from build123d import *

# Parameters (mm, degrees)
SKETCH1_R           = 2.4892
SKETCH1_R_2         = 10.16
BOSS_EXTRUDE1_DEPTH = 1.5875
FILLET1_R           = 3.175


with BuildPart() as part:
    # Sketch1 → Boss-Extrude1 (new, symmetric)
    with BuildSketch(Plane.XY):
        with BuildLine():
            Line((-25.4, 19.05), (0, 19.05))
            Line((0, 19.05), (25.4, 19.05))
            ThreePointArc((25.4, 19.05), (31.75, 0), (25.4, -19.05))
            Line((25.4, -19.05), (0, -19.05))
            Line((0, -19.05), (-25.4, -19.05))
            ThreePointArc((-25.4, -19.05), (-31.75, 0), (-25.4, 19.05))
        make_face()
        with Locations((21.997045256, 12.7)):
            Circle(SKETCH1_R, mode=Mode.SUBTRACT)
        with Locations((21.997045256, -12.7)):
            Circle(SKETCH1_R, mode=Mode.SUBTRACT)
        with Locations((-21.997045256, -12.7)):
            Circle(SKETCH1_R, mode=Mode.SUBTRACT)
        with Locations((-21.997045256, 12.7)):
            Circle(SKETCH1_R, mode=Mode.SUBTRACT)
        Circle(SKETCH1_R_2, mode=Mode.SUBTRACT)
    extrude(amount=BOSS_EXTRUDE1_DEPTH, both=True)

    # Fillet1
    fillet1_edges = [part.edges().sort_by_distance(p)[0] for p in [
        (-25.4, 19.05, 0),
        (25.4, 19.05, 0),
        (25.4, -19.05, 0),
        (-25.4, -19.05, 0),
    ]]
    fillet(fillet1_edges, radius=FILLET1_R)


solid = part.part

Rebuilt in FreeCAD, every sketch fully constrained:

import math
import FreeCAD as App
import Part
import Sketcher
from FreeCAD import Vector
Q = App.Units.Quantity


def edges_at(feature, points):
    """Names of the edges that pass closest to the given points."""
    edges = feature.Shape.Edges
    near = lambda p: min(range(len(edges)), key=lambda i: edges[i].distToShape(Part.Vertex(*p))[0])
    return sorted({f"Edge{near(p) + 1}" for p in points})

doc = App.newDocument("Part")
body = doc.addObject("PartDesign::Body", "Body")

sketch1 = doc.addObject("Sketcher::SketchObject", "Sketch")
body.addObject(sketch1)
sketch1.AttachmentSupport = (doc.XY_Plane, [""])
sketch1.MapMode = "FlatFace"
sketch1.addGeometry(Part.LineSegment(Vector(25.4, 19.1, 0), Vector(-25.4, 19.1, 0)), False)
sketch1.addGeometry(Part.ArcOfCircle(Part.Circle(Vector(0, 0, 0), Vector(0, 0, 1), 31.8), math.radians(143), math.radians(217)), False)
sketch1.addGeometry(Part.LineSegment(Vector(-25.4, -19.1, 0), Vector(25.4, -19.1, 0)), False)
sketch1.addGeometry(Part.ArcOfCircle(Part.Circle(Vector(0, 0, 0), Vector(0, 0, 1), 31.8), math.radians(-37), math.radians(37)), False)
sketch1.addGeometry(Part.Circle(Vector(22, -12.7, 0), Vector(0, 0, 1), 2.5), False)
sketch1.addGeometry(Part.Circle(Vector(-22, -12.7, 0), Vector(0, 0, 1), 2.5), False)
sketch1.addGeometry(Part.Circle(Vector(0, 0, 0), Vector(0, 0, 1), 10.2), False)
sketch1.addGeometry(Part.Circle(Vector(22, 12.7, 0), Vector(0, 0, 1), 2.5), False)
sketch1.addGeometry(Part.Circle(Vector(-22, 12.7, 0), Vector(0, 0, 1), 2.5), False)
sketch1.addConstraint(Sketcher.Constraint("Coincident", 0, 2, 1, 1))
sketch1.addConstraint(Sketcher.Constraint("Coincident", 1, 2, 2, 1))
sketch1.addConstraint(Sketcher.Constraint("Coincident", 2, 2, 3, 1))
sketch1.addConstraint(Sketcher.Constraint("Coincident", 3, 2, 0, 1))
sketch1.addConstraint(Sketcher.Constraint("Horizontal", 0))
sketch1.addConstraint(Sketcher.Constraint("Horizontal", 2))
sketch1.addConstraint(Sketcher.Constraint("Coincident", 1, 3, -1, 1))
sketch1.addConstraint(Sketcher.Constraint("Coincident", 3, 3, -1, 1))
sketch1.addConstraint(Sketcher.Constraint("Coincident", 6, 3, -1, 1))
sketch1.addConstraint(Sketcher.Constraint("Equal", 1, 3))
sketch1.addConstraint(Sketcher.Constraint("Equal", 4, 5))
sketch1.addConstraint(Sketcher.Constraint("Equal", 5, 7))
sketch1.addConstraint(Sketcher.Constraint("Equal", 7, 8))
sketch1.addConstraint(Sketcher.Constraint("Symmetric", 5, 3, 7, 3, -1, 1))
sketch1.addConstraint(Sketcher.Constraint("Symmetric", 4, 3, 8, 3, -1, 1))
sketch1.addConstraint(Sketcher.Constraint("Symmetric", 4, 3, 5, 3, -2))
sketch1.addConstraint(Sketcher.Constraint("Vertical", 0, 2, 1, 2))
sketch1.addConstraint(Sketcher.Constraint("Diameter", 6, Q("0.8 in")))
sketch1.addConstraint(Sketcher.Constraint("DistanceX", 0, 2, 0, 1, Q("2 in")))
sketch1.addConstraint(Sketcher.Constraint("Radius", 1, Q("1.25 in")))
sketch1.addConstraint(Sketcher.Constraint("Diameter", 4, Q("0.196 in")))
sketch1.addConstraint(Sketcher.Constraint("DistanceY", 4, 3, 7, 3, Q("1 in")))
sketch1.addConstraint(Sketcher.Constraint("DistanceX", 5, 3, 4, 3, Q("43.994091 mm")))
pad1 = doc.addObject("PartDesign::Pad", "Pad")
body.addObject(pad1)
pad1.Profile = sketch1
pad1.Length = Q("0.125 in")
pad1.Midplane = True
doc.recompute()

fillet = doc.addObject("PartDesign::Fillet", "Fillet")
body.addObject(fillet)
fillet.Base = (pad1, edges_at(pad1, [
    (-25.4, 19.05, 0),
    (25.4, 19.05, 0),
    (25.4, -19.05, 0),
    (-25.4, -19.05, 0),
]))
fillet.Radius = Q("0.125 in")

doc.recompute()
